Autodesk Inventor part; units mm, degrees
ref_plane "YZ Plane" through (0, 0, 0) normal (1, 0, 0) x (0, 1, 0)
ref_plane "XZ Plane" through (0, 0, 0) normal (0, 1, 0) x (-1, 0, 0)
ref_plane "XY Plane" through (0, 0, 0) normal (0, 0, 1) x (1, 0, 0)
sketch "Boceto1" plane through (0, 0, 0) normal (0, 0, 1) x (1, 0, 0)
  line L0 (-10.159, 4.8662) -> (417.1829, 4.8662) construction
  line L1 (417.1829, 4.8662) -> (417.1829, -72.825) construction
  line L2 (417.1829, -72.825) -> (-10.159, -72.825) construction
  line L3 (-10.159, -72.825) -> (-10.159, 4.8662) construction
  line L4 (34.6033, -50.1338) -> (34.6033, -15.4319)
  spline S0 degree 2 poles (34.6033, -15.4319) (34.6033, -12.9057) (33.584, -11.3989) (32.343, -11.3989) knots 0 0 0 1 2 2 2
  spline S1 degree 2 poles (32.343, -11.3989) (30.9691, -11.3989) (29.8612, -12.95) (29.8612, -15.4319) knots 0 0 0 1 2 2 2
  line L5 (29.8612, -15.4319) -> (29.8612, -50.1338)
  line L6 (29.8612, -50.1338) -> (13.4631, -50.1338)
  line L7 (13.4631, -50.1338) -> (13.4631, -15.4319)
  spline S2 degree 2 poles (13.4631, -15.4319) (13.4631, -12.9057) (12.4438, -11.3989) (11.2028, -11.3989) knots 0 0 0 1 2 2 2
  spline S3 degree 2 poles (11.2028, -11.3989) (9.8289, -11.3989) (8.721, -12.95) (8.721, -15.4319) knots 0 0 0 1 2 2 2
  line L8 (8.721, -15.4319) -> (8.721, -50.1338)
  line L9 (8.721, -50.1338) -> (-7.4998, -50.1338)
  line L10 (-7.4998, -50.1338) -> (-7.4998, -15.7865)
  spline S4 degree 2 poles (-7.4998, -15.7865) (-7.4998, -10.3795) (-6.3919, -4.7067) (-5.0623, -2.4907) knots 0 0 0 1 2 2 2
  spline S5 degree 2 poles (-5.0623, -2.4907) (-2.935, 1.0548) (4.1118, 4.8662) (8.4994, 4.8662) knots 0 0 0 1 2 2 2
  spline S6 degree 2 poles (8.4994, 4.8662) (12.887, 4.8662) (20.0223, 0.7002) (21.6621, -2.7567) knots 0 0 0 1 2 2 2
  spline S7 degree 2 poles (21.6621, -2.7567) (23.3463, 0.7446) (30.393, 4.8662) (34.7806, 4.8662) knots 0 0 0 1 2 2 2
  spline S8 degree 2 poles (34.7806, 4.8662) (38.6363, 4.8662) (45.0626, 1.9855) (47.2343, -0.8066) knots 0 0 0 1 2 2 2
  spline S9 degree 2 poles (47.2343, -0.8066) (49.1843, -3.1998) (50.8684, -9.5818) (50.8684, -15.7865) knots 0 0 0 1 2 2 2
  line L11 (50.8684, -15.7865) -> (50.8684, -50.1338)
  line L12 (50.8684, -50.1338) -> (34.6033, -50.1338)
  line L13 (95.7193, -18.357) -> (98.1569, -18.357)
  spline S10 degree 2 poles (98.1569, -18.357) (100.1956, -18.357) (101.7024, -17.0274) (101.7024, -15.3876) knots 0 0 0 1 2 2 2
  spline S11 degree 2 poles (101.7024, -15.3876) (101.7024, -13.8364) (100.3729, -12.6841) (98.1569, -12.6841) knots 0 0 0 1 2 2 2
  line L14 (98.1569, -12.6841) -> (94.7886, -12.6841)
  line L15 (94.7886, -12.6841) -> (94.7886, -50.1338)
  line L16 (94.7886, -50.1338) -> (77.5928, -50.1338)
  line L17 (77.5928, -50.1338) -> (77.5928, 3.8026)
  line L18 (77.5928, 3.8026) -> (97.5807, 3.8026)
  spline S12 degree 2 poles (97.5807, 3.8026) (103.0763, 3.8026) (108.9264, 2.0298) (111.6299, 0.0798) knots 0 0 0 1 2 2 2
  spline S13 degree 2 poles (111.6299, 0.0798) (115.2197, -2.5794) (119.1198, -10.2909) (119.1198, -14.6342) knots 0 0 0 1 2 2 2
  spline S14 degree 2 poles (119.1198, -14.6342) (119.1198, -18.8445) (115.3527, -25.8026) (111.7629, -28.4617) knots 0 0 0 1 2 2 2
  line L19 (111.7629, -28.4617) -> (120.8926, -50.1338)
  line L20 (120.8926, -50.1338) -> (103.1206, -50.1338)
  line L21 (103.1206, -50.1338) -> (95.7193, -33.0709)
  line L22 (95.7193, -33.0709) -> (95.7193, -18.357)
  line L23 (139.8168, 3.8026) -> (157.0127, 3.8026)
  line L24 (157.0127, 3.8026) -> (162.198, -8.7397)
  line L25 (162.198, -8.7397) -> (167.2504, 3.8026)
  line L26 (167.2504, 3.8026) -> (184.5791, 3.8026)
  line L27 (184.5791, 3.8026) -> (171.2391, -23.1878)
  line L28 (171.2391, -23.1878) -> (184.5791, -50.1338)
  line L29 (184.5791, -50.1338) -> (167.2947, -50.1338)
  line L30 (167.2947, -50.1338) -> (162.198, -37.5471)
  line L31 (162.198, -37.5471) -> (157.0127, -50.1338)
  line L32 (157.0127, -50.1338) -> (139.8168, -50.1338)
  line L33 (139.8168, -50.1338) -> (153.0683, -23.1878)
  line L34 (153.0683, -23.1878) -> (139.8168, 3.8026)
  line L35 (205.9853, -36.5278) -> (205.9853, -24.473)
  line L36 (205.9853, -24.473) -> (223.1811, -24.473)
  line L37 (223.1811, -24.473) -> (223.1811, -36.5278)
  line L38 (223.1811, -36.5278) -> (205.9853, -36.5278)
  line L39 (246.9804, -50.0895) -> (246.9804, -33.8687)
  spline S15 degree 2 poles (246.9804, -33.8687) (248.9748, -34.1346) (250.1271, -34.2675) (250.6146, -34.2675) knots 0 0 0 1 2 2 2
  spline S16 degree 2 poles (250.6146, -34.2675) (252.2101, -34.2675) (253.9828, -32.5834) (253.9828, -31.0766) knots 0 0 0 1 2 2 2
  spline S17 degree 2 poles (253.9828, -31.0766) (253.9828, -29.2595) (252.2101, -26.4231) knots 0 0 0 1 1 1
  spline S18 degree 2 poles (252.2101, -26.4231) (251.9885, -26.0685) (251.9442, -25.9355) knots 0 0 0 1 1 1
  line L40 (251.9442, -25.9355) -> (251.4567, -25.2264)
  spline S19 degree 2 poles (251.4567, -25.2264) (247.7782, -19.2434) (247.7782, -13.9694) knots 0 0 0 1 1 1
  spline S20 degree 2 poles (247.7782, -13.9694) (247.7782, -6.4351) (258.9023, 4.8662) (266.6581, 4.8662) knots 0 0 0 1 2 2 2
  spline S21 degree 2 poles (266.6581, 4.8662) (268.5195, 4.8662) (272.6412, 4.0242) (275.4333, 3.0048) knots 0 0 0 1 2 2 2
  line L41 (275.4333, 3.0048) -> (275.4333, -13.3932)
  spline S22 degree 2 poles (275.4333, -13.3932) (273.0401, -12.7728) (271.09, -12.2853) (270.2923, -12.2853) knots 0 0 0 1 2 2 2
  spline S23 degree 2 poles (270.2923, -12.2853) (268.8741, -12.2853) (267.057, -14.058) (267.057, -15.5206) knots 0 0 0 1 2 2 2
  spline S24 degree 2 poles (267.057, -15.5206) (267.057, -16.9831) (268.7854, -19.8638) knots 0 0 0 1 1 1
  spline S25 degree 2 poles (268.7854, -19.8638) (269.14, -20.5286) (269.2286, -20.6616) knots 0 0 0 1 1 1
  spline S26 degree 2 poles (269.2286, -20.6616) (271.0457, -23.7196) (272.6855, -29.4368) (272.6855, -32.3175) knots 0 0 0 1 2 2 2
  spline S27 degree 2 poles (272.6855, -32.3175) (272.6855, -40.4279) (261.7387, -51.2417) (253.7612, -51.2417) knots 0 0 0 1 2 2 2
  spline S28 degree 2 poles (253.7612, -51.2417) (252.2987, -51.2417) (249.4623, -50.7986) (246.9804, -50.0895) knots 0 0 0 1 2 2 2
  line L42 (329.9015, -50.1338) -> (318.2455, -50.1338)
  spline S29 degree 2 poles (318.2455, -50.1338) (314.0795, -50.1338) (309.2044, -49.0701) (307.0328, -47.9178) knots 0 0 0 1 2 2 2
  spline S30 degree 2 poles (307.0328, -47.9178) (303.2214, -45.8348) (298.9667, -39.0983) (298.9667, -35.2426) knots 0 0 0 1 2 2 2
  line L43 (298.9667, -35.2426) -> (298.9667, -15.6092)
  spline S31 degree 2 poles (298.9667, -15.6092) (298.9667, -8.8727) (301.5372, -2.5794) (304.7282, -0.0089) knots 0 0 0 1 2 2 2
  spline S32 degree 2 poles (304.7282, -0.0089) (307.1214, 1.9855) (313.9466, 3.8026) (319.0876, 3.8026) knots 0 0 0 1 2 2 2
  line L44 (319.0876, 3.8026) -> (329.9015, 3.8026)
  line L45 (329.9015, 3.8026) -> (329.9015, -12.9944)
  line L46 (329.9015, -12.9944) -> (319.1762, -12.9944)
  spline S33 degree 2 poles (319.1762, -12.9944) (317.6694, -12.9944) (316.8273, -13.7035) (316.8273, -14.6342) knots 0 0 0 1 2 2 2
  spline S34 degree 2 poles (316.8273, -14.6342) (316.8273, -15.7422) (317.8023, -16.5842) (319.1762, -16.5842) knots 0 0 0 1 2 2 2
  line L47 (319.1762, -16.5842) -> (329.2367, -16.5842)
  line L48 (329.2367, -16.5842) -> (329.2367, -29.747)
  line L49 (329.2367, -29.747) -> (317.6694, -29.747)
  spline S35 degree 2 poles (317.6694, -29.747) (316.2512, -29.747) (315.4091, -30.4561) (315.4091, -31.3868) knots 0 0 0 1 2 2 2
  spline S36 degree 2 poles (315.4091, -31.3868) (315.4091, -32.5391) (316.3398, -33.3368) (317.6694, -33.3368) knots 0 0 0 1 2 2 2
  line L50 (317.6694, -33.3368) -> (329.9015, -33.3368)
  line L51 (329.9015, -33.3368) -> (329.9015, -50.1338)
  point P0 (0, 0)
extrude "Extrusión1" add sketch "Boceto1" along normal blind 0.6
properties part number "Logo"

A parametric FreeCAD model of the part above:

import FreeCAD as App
import Part
import Sketcher
from FreeCAD import Vector
Q = App.Units.Quantity


def add_polygon(sketch, points):
    """Adds a closed chain of lines whose ends are joined by coincident constraints."""
    first, n = sketch.GeometryCount, len(points)
    for a, b in zip(points, points[1:] + points[:1]):
        sketch.addGeometry(Part.LineSegment(App.Vector(*a, 0), App.Vector(*b, 0)), False)
    for i in range(n):
        sketch.addConstraint(Sketcher.Constraint("Coincident", first + i, 2, first + (i + 1) % n, 1))

doc = App.newDocument("Part")
params = doc.addObject("Spreadsheet::Sheet", "Params")
for row, (alias, value) in enumerate([
    ("sketch1_width", "0.677 in"),
    ("pad1_length", "0.6 mm"),
], start=1):
    params.set(f"A{row}", alias)
    params.set(f"B{row}", "=" + value)
    params.setAlias(f"B{row}", alias)

body = doc.addObject("PartDesign::Body", "Body")
body.AllowCompound = True

sketch1 = body.newObject("Sketcher::SketchObject", "Sketch")
sketch1.AttachmentSupport = (doc.getObject("XY_Plane"), [""])
sketch1.MapMode = "FlatFace"
sketch1.addGeometry(Part.LineSegment(Vector(34.6033, -15.4319, 0), Vector(34.6033, -50.1338, 0)), False)
sketch1.addGeometry(Part.LineSegment(Vector(34.6033, -50.1338, 0), Vector(50.8684, -50.1338, 0)), False)
sketch1.addGeometry(Part.LineSegment(Vector(50.8684, -50.1338, 0), Vector(50.8684, -15.7865, 0)), False)
sketch1.addGeometry(Part.BSplineCurve([Vector(47.2343, -0.8066, 0), Vector(49.1843, -3.1998, 0), Vector(50.8684, -9.5818, 0), Vector(50.8684, -15.7865, 0)], [3, 1, 3], [0, 1, 2], False, 2, [1, 1, 1, 1], False), False)
sketch1.addGeometry(Part.BSplineCurve([Vector(34.7806, 4.8662, 0), Vector(38.6363, 4.8662, 0), Vector(45.0626, 1.9855, 0), Vector(47.2343, -0.8066, 0)], [3, 1, 3], [0, 1, 2], False, 2, [1, 1, 1, 1], False), False)
sketch1.addGeometry(Part.BSplineCurve([Vector(21.6621, -2.7567, 0), Vector(23.3463, 0.7446, 0), Vector(30.393, 4.8662, 0), Vector(34.7806, 4.8662, 0)], [3, 1, 3], [0, 1, 2], False, 2, [1, 1, 1, 1], False), False)
sketch1.addGeometry(Part.BSplineCurve([Vector(8.4994, 4.8662, 0), Vector(12.887, 4.8662, 0), Vector(20.0223, 0.7002, 0), Vector(21.6621, -2.7567, 0)], [3, 1, 3], [0, 1, 2], False, 2, [1, 1, 1, 1], False), False)
sketch1.addGeometry(Part.BSplineCurve([Vector(-5.0623, -2.4907, 0), Vector(-2.935, 1.0548, 0), Vector(4.1118, 4.8662, 0), Vector(8.4994, 4.8662, 0)], [3, 1, 3], [0, 1, 2], False, 2, [1, 1, 1, 1], False), False)
sketch1.addGeometry(Part.BSplineCurve([Vector(-7.4998, -15.7865, 0), Vector(-7.4998, -10.3795, 0), Vector(-6.3919, -4.7067, 0), Vector(-5.0623, -2.4907, 0)], [3, 1, 3], [0, 1, 2], False, 2, [1, 1, 1, 1], False), False)
sketch1.addGeometry(Part.LineSegment(Vector(-7.4998, -15.7865, 0), Vector(-7.4998, -50.1338, 0)), False)
sketch1.addGeometry(Part.LineSegment(Vector(-7.4998, -50.1338, 0), Vector(8.721, -50.1338, 0)), False)
sketch1.addGeometry(Part.LineSegment(Vector(8.721, -50.1338, 0), Vector(8.721, -15.4319, 0)), False)
sketch1.addGeometry(Part.BSplineCurve([Vector(11.2028, -11.3989, 0), Vector(9.8289, -11.3989, 0), Vector(8.721, -12.95, 0), Vector(8.721, -15.4319, 0)], [3, 1, 3], [0, 1, 2], False, 2, [1, 1, 1, 1], False), False)
sketch1.addGeometry(Part.BSplineCurve([Vector(13.4631, -15.4319, 0), Vector(13.4631, -12.9057, 0), Vector(12.4438, -11.3989, 0), Vector(11.2028, -11.3989, 0)], [3, 1, 3], [0, 1, 2], False, 2, [1, 1, 1, 1], False), False)
sketch1.addGeometry(Part.LineSegment(Vector(13.4631, -15.4319, 0), Vector(13.4631, -50.1338, 0)), False)
sketch1.addGeometry(Part.LineSegment(Vector(13.4631, -50.1338, 0), Vector(29.8612, -50.1338, 0)), False)
sketch1.addGeometry(Part.LineSegment(Vector(29.8612, -50.1338, 0), Vector(29.8612, -15.4319, 0)), False)
sketch1.addGeometry(Part.BSplineCurve([Vector(32.343, -11.3989, 0), Vector(30.9691, -11.3989, 0), Vector(29.8612, -12.95, 0), Vector(29.8612, -15.4319, 0)], [3, 1, 3], [0, 1, 2], False, 2, [1, 1, 1, 1], False), False)
sketch1.addGeometry(Part.BSplineCurve([Vector(34.6033, -15.4319, 0), Vector(34.6033, -12.9057, 0), Vector(33.584, -11.3989, 0), Vector(32.343, -11.3989, 0)], [3, 1, 3], [0, 1, 2], False, 2, [1, 1, 1, 1], False), False)
sketch1.addGeometry(Part.LineSegment(Vector(98.1569, -18.357, 0), Vector(95.7193, -18.357, 0)), False)
sketch1.addGeometry(Part.LineSegment(Vector(95.7193, -18.357, 0), Vector(95.7193, -33.0709, 0)), False)
sketch1.addGeometry(Part.LineSegment(Vector(95.7193, -33.0709, 0), Vector(103.1206, -50.1338, 0)), False)
sketch1.addGeometry(Part.LineSegment(Vector(103.1206, -50.1338, 0), Vector(120.8926, -50.1338, 0)), False)
sketch1.addGeometry(Part.LineSegment(Vector(120.8926, -50.1338, 0), Vector(111.7629, -28.4617, 0)), False)
sketch1.addGeometry(Part.BSplineCurve([Vector(119.1198, -14.6342, 0), Vector(119.1198, -18.8445, 0), Vector(115.3527, -25.8026, 0), Vector(111.7629, -28.4617, 0)], [3, 1, 3], [0, 1, 2], False, 2, [1, 1, 1, 1], False), False)
sketch1.addGeometry(Part.BSplineCurve([Vector(111.6299, 0.0798, 0), Vector(115.2197, -2.5794, 0), Vector(119.1198, -10.2909, 0), Vector(119.1198, -14.6342, 0)], [3, 1, 3], [0, 1, 2], False, 2, [1, 1, 1, 1], False), False)
sketch1.addGeometry(Part.BSplineCurve([Vector(97.5807, 3.8026, 0), Vector(103.0763, 3.8026, 0), Vector(108.9264, 2.0298, 0), Vector(111.6299, 0.0798, 0)], [3, 1, 3], [0, 1, 2], False, 2, [1, 1, 1, 1], False), False)
sketch1.addGeometry(Part.LineSegment(Vector(97.5807, 3.8026, 0), Vector(77.5928, 3.8026, 0)), False)
sketch1.addGeometry(Part.LineSegment(Vector(77.5928, 3.8026, 0), Vector(77.5928, -50.1338, 0)), False)
sketch1.addGeometry(Part.LineSegment(Vector(77.5928, -50.1338, 0), Vector(94.7886, -50.1338, 0)), False)
sketch1.addGeometry(Part.LineSegment(Vector(94.7886, -50.1338, 0), Vector(94.7886, -12.6841, 0)), False)
sketch1.addGeometry(Part.LineSegment(Vector(94.7886, -12.6841, 0), Vector(98.1569, -12.6841, 0)), False)
sketch1.addGeometry(Part.BSplineCurve([Vector(101.7024, -15.3876, 0), Vector(101.7024, -13.8364, 0), Vector(100.3729, -12.6841, 0), Vector(98.1569, -12.6841, 0)], [3, 1, 3], [0, 1, 2], False, 2, [1, 1, 1, 1], False), False)
sketch1.addGeometry(Part.BSplineCurve([Vector(98.1569, -18.357, 0), Vector(100.1956, -18.357, 0), Vector(101.7024, -17.0274, 0), Vector(101.7024, -15.3876, 0)], [3, 1, 3], [0, 1, 2], False, 2, [1, 1, 1, 1], False), False)
add_polygon(sketch1, [(157.0127, 3.8026), (139.8168, 3.8026), (153.0683, -23.1878), (139.8168, -50.1338), (157.0127, -50.1338), (162.198, -37.5471), (167.2947, -50.1338), (184.5791, -50.1338), (171.2391, -23.1878), (184.5791, 3.8026), (167.2504, 3.8026), (162.198, -8.7397)])
add_polygon(sketch1, [(205.9853, -24.473), (205.9853, -36.5278), (223.1811, -36.5278), (223.1811, -24.473)])
sketch1.addGeometry(Part.LineSegment(Vector(246.9804, -33.8687, 0), Vector(246.9804, -50.0895, 0)), False)
sketch1.addGeometry(Part.BSplineCurve([Vector(253.7612, -51.2417, 0), Vector(252.2987, -51.2417, 0), Vector(249.4623, -50.7986, 0), Vector(246.9804, -50.0895, 0)], [3, 1, 3], [0, 1, 2], False, 2, [1, 1, 1, 1], False), False)
sketch1.addGeometry(Part.BSplineCurve([Vector(272.6855, -32.3175, 0), Vector(272.6855, -40.4279, 0), Vector(261.7387, -51.2417, 0), Vector(253.7612, -51.2417, 0)], [3, 1, 3], [0, 1, 2], False, 2, [1, 1, 1, 1], False), False)
sketch1.addGeometry(Part.BSplineCurve([Vector(269.2286, -20.6616, 0), Vector(271.0457, -23.7196, 0), Vector(272.6855, -29.4368, 0), Vector(272.6855, -32.3175, 0)], [3, 1, 3], [0, 1, 2], False, 2, [1, 1, 1, 1], False), False)
sketch1.addGeometry(Part.BSplineCurve([Vector(268.7854, -19.8638, 0), Vector(269.14, -20.5286, 0), Vector(269.2286, -20.6616, 0)], [3, 3], [0, 1], False, 2, [1, 1, 1], False), False)
sketch1.addGeometry(Part.BSplineCurve([Vector(267.057, -15.5206, 0), Vector(267.057, -16.9831, 0), Vector(268.7854, -19.8638, 0)], [3, 3], [0, 1], False, 2, [1, 1, 1], False), False)
sketch1.addGeometry(Part.BSplineCurve([Vector(270.2923, -12.2853, 0), Vector(268.8741, -12.2853, 0), Vector(267.057, -14.058, 0), Vector(267.057, -15.5206, 0)], [3, 1, 3], [0, 1, 2], False, 2, [1, 1, 1, 1], False), False)
sketch1.addGeometry(Part.BSplineCurve([Vector(275.4333, -13.3932, 0), Vector(273.0401, -12.7728, 0), Vector(271.09, -12.2853, 0), Vector(270.2923, -12.2853, 0)], [3, 1, 3], [0, 1, 2], False, 2, [1, 1, 1, 1], False), False)
sketch1.addGeometry(Part.LineSegment(Vector(275.4333, -13.3932, 0), Vector(275.4333, 3.0048, 0)), False)
sketch1.addGeometry(Part.BSplineCurve([Vector(266.6581, 4.8662, 0), Vector(268.5195, 4.8662, 0), Vector(272.6412, 4.0242, 0), Vector(275.4333, 3.0048, 0)], [3, 1, 3], [0, 1, 2], False, 2, [1, 1, 1, 1], False), False)
sketch1.addGeometry(Part.BSplineCurve([Vector(247.7782, -13.9694, 0), Vector(247.7782, -6.4351, 0), Vector(258.9023, 4.8662, 0), Vector(266.6581, 4.8662, 0)], [3, 1, 3], [0, 1, 2], False, 2, [1, 1, 1, 1], False), False)
sketch1.addGeometry(Part.BSplineCurve([Vector(251.4567, -25.2264, 0), Vector(247.7782, -19.2434, 0), Vector(247.7782, -13.9694, 0)], [3, 3], [0, 1], False, 2, [1, 1, 1], False), False)
sketch1.addGeometry(Part.LineSegment(Vector(251.4567, -25.2264, 0), Vector(251.9442, -25.9355, 0)), False)
sketch1.addGeometry(Part.BSplineCurve([Vector(252.2101, -26.4231, 0), Vector(251.9885, -26.0685, 0), Vector(251.9442, -25.9355, 0)], [3, 3], [0, 1], False, 2, [1, 1, 1], False), False)
sketch1.addGeometry(Part.BSplineCurve([Vector(253.9828, -31.0766, 0), Vector(253.9828, -29.2595, 0), Vector(252.2101, -26.4231, 0)], [3, 3], [0, 1], False, 2, [1, 1, 1], False), False)
sketch1.addGeometry(Part.BSplineCurve([Vector(250.6146, -34.2675, 0), Vector(252.2101, -34.2675, 0), Vector(253.9828, -32.5834, 0), Vector(253.9828, -31.0766, 0)], [3, 1, 3], [0, 1, 2], False, 2, [1, 1, 1, 1], False), False)
sketch1.addGeometry(Part.BSplineCurve([Vector(246.9804, -33.8687, 0), Vector(248.9748, -34.1346, 0), Vector(250.1271, -34.2675, 0), Vector(250.6146, -34.2675, 0)], [3, 1, 3], [0, 1, 2], False, 2, [1, 1, 1, 1], False), False)
sketch1.addGeometry(Part.LineSegment(Vector(318.2455, -50.1338, 0), Vector(329.9015, -50.1338, 0)), False)
sketch1.addGeometry(Part.LineSegment(Vector(329.9015, -50.1338, 0), Vector(329.9015, -33.3368, 0)), False)
sketch1.addGeometry(Part.LineSegment(Vector(329.9015, -33.3368, 0), Vector(317.6694, -33.3368, 0)), False)
sketch1.addGeometry(Part.BSplineCurve([Vector(315.4091, -31.3868, 0), Vector(315.4091, -32.5391, 0), Vector(316.3398, -33.3368, 0), Vector(317.6694, -33.3368, 0)], [3, 1, 3], [0, 1, 2], False, 2, [1, 1, 1, 1], False), False)
sketch1.addGeometry(Part.BSplineCurve([Vector(317.6694, -29.747, 0), Vector(316.2512, -29.747, 0), Vector(315.4091, -30.4561, 0), Vector(315.4091, -31.3868, 0)], [3, 1, 3], [0, 1, 2], False, 2, [1, 1, 1, 1], False), False)
sketch1.addGeometry(Part.LineSegment(Vector(317.6694, -29.747, 0), Vector(329.2367, -29.747, 0)), False)
sketch1.addGeometry(Part.LineSegment(Vector(329.2367, -29.747, 0), Vector(329.2367, -16.5842, 0)), False)
sketch1.addGeometry(Part.LineSegment(Vector(329.2367, -16.5842, 0), Vector(319.1762, -16.5842, 0)), False)
sketch1.addGeometry(Part.BSplineCurve([Vector(316.8273, -14.6342, 0), Vector(316.8273, -15.7422, 0), Vector(317.8023, -16.5842, 0), Vector(319.1762, -16.5842, 0)], [3, 1, 3], [0, 1, 2], False, 2, [1, 1, 1, 1], False), False)
sketch1.addGeometry(Part.BSplineCurve([Vector(319.1762, -12.9944, 0), Vector(317.6694, -12.9944, 0), Vector(316.8273, -13.7035, 0), Vector(316.8273, -14.6342, 0)], [3, 1, 3], [0, 1, 2], False, 2, [1, 1, 1, 1], False), False)
sketch1.addGeometry(Part.LineSegment(Vector(319.1762, -12.9944, 0), Vector(329.9015, -12.9944, 0)), False)
sketch1.addGeometry(Part.LineSegment(Vector(329.9015, -12.9944, 0), Vector(329.9015, 3.8026, 0)), False)
sketch1.addGeometry(Part.LineSegment(Vector(329.9015, 3.8026, 0), Vector(319.0876, 3.8026, 0)), False)
sketch1.addGeometry(Part.BSplineCurve([Vector(304.7282, -0.0089, 0), Vector(307.1214, 1.9855, 0), Vector(313.9466, 3.8026, 0), Vector(319.0876, 3.8026, 0)], [3, 1, 3], [0, 1, 2], False, 2, [1, 1, 1, 1], False), False)
sketch1.addGeometry(Part.BSplineCurve([Vector(298.9667, -15.6092, 0), Vector(298.9667, -8.8727, 0), Vector(301.5372, -2.5794, 0), Vector(304.7282, -0.0089, 0)], [3, 1, 3], [0, 1, 2], False, 2, [1, 1, 1, 1], False), False)
sketch1.addGeometry(Part.LineSegment(Vector(298.9667, -15.6092, 0), Vector(298.9667, -35.2426, 0)), False)
sketch1.addGeometry(Part.BSplineCurve([Vector(307.0328, -47.9178, 0), Vector(303.2214, -45.8348, 0), Vector(298.9667, -39.0983, 0), Vector(298.9667, -35.2426, 0)], [3, 1, 3], [0, 1, 2], False, 2, [1, 1, 1, 1], False), False)
sketch1.addGeometry(Part.BSplineCurve([Vector(318.2455, -50.1338, 0), Vector(314.0795, -50.1338, 0), Vector(309.2044, -49.0701, 0), Vector(307.0328, -47.9178, 0)], [3, 1, 3], [0, 1, 2], False, 2, [1, 1, 1, 1], False), False)
sketch1.addConstraint([
    Sketcher.Constraint("Block", 3),
    Sketcher.Constraint("Block", 4),
    Sketcher.Constraint("Block", 5),
    Sketcher.Constraint("Block", 6),
    Sketcher.Constraint("Block", 7),
    Sketcher.Constraint("Block", 8),
    Sketcher.Constraint("Block", 12),
    Sketcher.Constraint("Block", 13),
    Sketcher.Constraint("Block", 17),
    Sketcher.Constraint("Block", 18),
    Sketcher.Constraint("Block", 24),
    Sketcher.Constraint("Block", 25),
    Sketcher.Constraint("Block", 26),
    Sketcher.Constraint("Block", 32),
    Sketcher.Constraint("Block", 33),
    Sketcher.Constraint("Block", 51),
    Sketcher.Constraint("Block", 52),
    Sketcher.Constraint("Block", 53),
    Sketcher.Constraint("Block", 54),
    Sketcher.Constraint("Block", 55),
    Sketcher.Constraint("Block", 56),
    Sketcher.Constraint("Block", 57),
    Sketcher.Constraint("Block", 59),
    Sketcher.Constraint("Block", 60),
    Sketcher.Constraint("Block", 61),
    Sketcher.Constraint("Block", 63),
    Sketcher.Constraint("Block", 64),
    Sketcher.Constraint("Block", 65),
    Sketcher.Constraint("Block", 66),
    Sketcher.Constraint("Block", 70),
    Sketcher.Constraint("Block", 71),
    Sketcher.Constraint("Block", 75),
    Sketcher.Constraint("Block", 76),
    Sketcher.Constraint("Block", 80),
    Sketcher.Constraint("Block", 81),
    Sketcher.Constraint("Block", 83),
    Sketcher.Constraint("Block", 84),
    Sketcher.Constraint("Coincident", 0, 2, 1, 1),
    Sketcher.Constraint("Coincident", 1, 2, 2, 1),
    Sketcher.Constraint("Coincident", 2, 2, 3, 2),
    Sketcher.Constraint("Coincident", 8, 1, 9, 1),
    Sketcher.Constraint("Coincident", 9, 2, 10, 1),
    Sketcher.Constraint("Coincident", 10, 2, 11, 1),
    Sketcher.Constraint("Coincident", 11, 2, 12, 2),
    Sketcher.Constraint("Coincident", 13, 1, 14, 1),
    Sketcher.Constraint("Coincident", 14, 2, 15, 1),
    Sketcher.Constraint("Coincident", 15, 2, 16, 1),
    Sketcher.Constraint("Coincident", 16, 2, 17, 2),
    Sketcher.Constraint("Coincident", 18, 1, 0, 1),
    Sketcher.Constraint("Coincident", 19, 2, 20, 1),
    Sketcher.Constraint("Coincident", 20, 2, 21, 1),
    Sketcher.Constraint("Coincident", 21, 2, 22, 1),
    Sketcher.Constraint("Coincident", 22, 2, 23, 1),
    Sketcher.Constraint("Coincident", 23, 2, 24, 2),
    Sketcher.Constraint("Coincident", 26, 1, 27, 1),
    Sketcher.Constraint("Coincident", 27, 2, 28, 1),
    Sketcher.Constraint("Coincident", 28, 2, 29, 1),
    Sketcher.Constraint("Coincident", 29, 2, 30, 1),
    Sketcher.Constraint("Coincident", 30, 2, 31, 1),
    Sketcher.Constraint("Coincident", 31, 2, 32, 2),
    Sketcher.Constraint("Coincident", 33, 1, 19, 1),
    Sketcher.Constraint("Coincident", 50, 2, 51, 2),
    Sketcher.Constraint("Coincident", 57, 1, 58, 1),
    Sketcher.Constraint("Coincident", 58, 2, 59, 2),
    Sketcher.Constraint("Coincident", 61, 1, 62, 1),
    Sketcher.Constraint("Coincident", 62, 2, 63, 2),
    Sketcher.Constraint("Coincident", 66, 1, 50, 1),
    Sketcher.Constraint("Coincident", 67, 2, 68, 1),
    Sketcher.Constraint("Coincident", 68, 2, 69, 1),
    Sketcher.Constraint("Coincident", 69, 2, 70, 2),
    Sketcher.Constraint("Coincident", 71, 1, 72, 1),
    Sketcher.Constraint("Coincident", 72, 2, 73, 1),
    Sketcher.Constraint("Coincident", 73, 2, 74, 1),
    Sketcher.Constraint("Coincident", 74, 2, 75, 2),
    Sketcher.Constraint("Coincident", 76, 1, 77, 1),
    Sketcher.Constraint("Coincident", 77, 2, 78, 1),
    Sketcher.Constraint("Coincident", 78, 2, 79, 1),
    Sketcher.Constraint("Coincident", 79, 2, 80, 2),
    Sketcher.Constraint("Coincident", 81, 1, 82, 1),
    Sketcher.Constraint("Coincident", 82, 2, 83, 2),
    Sketcher.Constraint("Coincident", 84, 1, 67, 1),
    Sketcher.Constraint("Vertical", 0),
    Sketcher.Constraint("Horizontal", 1),
    Sketcher.Constraint("Vertical", 2),
    Sketcher.Constraint("Vertical", 9),
    Sketcher.Constraint("Horizontal", 10),
    Sketcher.Constraint("Vertical", 11),
    Sketcher.Constraint("Vertical", 14),
    Sketcher.Constraint("Horizontal", 15),
    Sketcher.Constraint("Vertical", 16),
    Sketcher.Constraint("Horizontal", 19),
    Sketcher.Constraint("Vertical", 20),
    Sketcher.Constraint("Horizontal", 22),
    Sketcher.Constraint("Horizontal", 27),
    Sketcher.Constraint("Vertical", 28),
    Sketcher.Constraint("Horizontal", 29),
    Sketcher.Constraint("Vertical", 30),
    Sketcher.Constraint("Horizontal", 31),
    Sketcher.Constraint("Horizontal", 34),
    Sketcher.Constraint("Horizontal", 37),
    Sketcher.Constraint("Horizontal", 40),
    Sketcher.Constraint("Horizontal", 43),
    Sketcher.Constraint("Vertical", 46),
    Sketcher.Constraint("Horizontal", 47),
    Sketcher.Constraint("Vertical", 48),
    Sketcher.Constraint("Horizontal", 49),
    Sketcher.Constraint("Horizontal", 67),
    Sketcher.Constraint("Vertical", 68),
    Sketcher.Constraint("Horizontal", 69),
    Sketcher.Constraint("Horizontal", 72),
    Sketcher.Constraint("Vertical", 73),
    Sketcher.Constraint("Horizontal", 74),
    Sketcher.Constraint("Horizontal", 77),
    Sketcher.Constraint("Vertical", 78),
    Sketcher.Constraint("Horizontal", 79),
    Sketcher.Constraint("Horizontal", 1, 2, 9, 2),
    Sketcher.Constraint("Horizontal", 10, 2, 14, 2),
    Sketcher.Constraint("Horizontal", 15, 2, 21, 2),
    Sketcher.Constraint("Horizontal", 22, 2, 28, 2),
    Sketcher.Constraint("Horizontal", 27, 2, 34, 2),
    Sketcher.Constraint("Horizontal", 29, 2, 36, 2),
    Sketcher.Constraint("Horizontal", 37, 2, 39, 2),
    Sketcher.Constraint("Horizontal", 35, 2, 41, 2),
    Sketcher.Constraint("Horizontal", 34, 2, 42, 2),
    Sketcher.Constraint("Horizontal", 40, 2, 67, 2),
    Sketcher.Constraint("Vertical", 34, 2, 36, 2),
    Sketcher.Constraint("Vertical", 40, 2, 42, 2),
    Sketcher.Constraint("Vertical", 38, 2, 44, 2),
    Sketcher.Constraint("Vertical", 37, 2, 45, 2),
    Sketcher.Constraint("Vertical", 68, 2, 77, 2),
    Sketcher.Constraint("Equal", 29, 34),
    Sketcher.Constraint("Equal", 37, 47),
    Sketcher.Constraint("Angle", 42, Q("63.6991 deg")),
    Sketcher.Constraint("DistanceX", 29, 1, 29, 2, Q("0.677 in")),
    Sketcher.Constraint("Angle", 21, Q("-66.5505 deg")),
    Sketcher.Constraint("Angle", 35, Q("-63.8503 deg")),
    Sketcher.Constraint("Angle", 38, Q("67.61 deg")),
    Sketcher.Constraint("Angle", 44, Q("-111.941 deg")),
    Sketcher.Constraint("DistanceX", 31, 1, 31, 2, Q("0.1326 in")),
    Sketcher.Constraint("DistanceX", 40, 1, 40, 2, Q("0.6805 in")),
    Sketcher.Constraint("DistanceX", 67, 1, 67, 2, Q("0.4589 in")),
    Sketcher.Constraint("DistanceX", 72, 1, 72, 2, Q("0.4554 in")),
    Sketcher.Constraint("DistanceY", 46, 2, 46, 1, Q("0.4746 in")),
    Sketcher.Constraint("DistanceY", 20, 2, -1, 1, Q("1.302 in")),
    Sketcher.Constraint("Distance", 36, Q("1.1822 in")),
    Sketcher.Constraint("DistanceX", 19, 2, 19, 1, 2.4376),
    Sketcher.Constraint("DistanceX", 22, 1, 22, 2, 17.772),
    Sketcher.Constraint("DistanceX", 43, 2, 43, 1, 17.3287),
    Sketcher.Constraint("DistanceX", -1, 1, 34, 2, Q("5.5046 in")),
    Sketcher.Constraint("DistanceX", -1, 1, 39, 2, Q("6.5864 in")),
    Sketcher.Constraint("DistanceY", 46, 2, -1, 1, Q("1.4381 in")),
    Sketcher.Constraint("DistanceX", 22, 2, 38, 2, Q("1.6262 in")),
    Sketcher.Constraint("DistanceX", 38, 2, 46, 2, Q("1.7239 in")),
])
sketch1.setExpression("Constraints[149]", "Params.sketch1_width")
pad1 = body.newObject("PartDesign::Pad", "Pad")
pad1.Profile = sketch1
pad1.setExpression("Length", "Params.pad1_length")

doc.recompute()
